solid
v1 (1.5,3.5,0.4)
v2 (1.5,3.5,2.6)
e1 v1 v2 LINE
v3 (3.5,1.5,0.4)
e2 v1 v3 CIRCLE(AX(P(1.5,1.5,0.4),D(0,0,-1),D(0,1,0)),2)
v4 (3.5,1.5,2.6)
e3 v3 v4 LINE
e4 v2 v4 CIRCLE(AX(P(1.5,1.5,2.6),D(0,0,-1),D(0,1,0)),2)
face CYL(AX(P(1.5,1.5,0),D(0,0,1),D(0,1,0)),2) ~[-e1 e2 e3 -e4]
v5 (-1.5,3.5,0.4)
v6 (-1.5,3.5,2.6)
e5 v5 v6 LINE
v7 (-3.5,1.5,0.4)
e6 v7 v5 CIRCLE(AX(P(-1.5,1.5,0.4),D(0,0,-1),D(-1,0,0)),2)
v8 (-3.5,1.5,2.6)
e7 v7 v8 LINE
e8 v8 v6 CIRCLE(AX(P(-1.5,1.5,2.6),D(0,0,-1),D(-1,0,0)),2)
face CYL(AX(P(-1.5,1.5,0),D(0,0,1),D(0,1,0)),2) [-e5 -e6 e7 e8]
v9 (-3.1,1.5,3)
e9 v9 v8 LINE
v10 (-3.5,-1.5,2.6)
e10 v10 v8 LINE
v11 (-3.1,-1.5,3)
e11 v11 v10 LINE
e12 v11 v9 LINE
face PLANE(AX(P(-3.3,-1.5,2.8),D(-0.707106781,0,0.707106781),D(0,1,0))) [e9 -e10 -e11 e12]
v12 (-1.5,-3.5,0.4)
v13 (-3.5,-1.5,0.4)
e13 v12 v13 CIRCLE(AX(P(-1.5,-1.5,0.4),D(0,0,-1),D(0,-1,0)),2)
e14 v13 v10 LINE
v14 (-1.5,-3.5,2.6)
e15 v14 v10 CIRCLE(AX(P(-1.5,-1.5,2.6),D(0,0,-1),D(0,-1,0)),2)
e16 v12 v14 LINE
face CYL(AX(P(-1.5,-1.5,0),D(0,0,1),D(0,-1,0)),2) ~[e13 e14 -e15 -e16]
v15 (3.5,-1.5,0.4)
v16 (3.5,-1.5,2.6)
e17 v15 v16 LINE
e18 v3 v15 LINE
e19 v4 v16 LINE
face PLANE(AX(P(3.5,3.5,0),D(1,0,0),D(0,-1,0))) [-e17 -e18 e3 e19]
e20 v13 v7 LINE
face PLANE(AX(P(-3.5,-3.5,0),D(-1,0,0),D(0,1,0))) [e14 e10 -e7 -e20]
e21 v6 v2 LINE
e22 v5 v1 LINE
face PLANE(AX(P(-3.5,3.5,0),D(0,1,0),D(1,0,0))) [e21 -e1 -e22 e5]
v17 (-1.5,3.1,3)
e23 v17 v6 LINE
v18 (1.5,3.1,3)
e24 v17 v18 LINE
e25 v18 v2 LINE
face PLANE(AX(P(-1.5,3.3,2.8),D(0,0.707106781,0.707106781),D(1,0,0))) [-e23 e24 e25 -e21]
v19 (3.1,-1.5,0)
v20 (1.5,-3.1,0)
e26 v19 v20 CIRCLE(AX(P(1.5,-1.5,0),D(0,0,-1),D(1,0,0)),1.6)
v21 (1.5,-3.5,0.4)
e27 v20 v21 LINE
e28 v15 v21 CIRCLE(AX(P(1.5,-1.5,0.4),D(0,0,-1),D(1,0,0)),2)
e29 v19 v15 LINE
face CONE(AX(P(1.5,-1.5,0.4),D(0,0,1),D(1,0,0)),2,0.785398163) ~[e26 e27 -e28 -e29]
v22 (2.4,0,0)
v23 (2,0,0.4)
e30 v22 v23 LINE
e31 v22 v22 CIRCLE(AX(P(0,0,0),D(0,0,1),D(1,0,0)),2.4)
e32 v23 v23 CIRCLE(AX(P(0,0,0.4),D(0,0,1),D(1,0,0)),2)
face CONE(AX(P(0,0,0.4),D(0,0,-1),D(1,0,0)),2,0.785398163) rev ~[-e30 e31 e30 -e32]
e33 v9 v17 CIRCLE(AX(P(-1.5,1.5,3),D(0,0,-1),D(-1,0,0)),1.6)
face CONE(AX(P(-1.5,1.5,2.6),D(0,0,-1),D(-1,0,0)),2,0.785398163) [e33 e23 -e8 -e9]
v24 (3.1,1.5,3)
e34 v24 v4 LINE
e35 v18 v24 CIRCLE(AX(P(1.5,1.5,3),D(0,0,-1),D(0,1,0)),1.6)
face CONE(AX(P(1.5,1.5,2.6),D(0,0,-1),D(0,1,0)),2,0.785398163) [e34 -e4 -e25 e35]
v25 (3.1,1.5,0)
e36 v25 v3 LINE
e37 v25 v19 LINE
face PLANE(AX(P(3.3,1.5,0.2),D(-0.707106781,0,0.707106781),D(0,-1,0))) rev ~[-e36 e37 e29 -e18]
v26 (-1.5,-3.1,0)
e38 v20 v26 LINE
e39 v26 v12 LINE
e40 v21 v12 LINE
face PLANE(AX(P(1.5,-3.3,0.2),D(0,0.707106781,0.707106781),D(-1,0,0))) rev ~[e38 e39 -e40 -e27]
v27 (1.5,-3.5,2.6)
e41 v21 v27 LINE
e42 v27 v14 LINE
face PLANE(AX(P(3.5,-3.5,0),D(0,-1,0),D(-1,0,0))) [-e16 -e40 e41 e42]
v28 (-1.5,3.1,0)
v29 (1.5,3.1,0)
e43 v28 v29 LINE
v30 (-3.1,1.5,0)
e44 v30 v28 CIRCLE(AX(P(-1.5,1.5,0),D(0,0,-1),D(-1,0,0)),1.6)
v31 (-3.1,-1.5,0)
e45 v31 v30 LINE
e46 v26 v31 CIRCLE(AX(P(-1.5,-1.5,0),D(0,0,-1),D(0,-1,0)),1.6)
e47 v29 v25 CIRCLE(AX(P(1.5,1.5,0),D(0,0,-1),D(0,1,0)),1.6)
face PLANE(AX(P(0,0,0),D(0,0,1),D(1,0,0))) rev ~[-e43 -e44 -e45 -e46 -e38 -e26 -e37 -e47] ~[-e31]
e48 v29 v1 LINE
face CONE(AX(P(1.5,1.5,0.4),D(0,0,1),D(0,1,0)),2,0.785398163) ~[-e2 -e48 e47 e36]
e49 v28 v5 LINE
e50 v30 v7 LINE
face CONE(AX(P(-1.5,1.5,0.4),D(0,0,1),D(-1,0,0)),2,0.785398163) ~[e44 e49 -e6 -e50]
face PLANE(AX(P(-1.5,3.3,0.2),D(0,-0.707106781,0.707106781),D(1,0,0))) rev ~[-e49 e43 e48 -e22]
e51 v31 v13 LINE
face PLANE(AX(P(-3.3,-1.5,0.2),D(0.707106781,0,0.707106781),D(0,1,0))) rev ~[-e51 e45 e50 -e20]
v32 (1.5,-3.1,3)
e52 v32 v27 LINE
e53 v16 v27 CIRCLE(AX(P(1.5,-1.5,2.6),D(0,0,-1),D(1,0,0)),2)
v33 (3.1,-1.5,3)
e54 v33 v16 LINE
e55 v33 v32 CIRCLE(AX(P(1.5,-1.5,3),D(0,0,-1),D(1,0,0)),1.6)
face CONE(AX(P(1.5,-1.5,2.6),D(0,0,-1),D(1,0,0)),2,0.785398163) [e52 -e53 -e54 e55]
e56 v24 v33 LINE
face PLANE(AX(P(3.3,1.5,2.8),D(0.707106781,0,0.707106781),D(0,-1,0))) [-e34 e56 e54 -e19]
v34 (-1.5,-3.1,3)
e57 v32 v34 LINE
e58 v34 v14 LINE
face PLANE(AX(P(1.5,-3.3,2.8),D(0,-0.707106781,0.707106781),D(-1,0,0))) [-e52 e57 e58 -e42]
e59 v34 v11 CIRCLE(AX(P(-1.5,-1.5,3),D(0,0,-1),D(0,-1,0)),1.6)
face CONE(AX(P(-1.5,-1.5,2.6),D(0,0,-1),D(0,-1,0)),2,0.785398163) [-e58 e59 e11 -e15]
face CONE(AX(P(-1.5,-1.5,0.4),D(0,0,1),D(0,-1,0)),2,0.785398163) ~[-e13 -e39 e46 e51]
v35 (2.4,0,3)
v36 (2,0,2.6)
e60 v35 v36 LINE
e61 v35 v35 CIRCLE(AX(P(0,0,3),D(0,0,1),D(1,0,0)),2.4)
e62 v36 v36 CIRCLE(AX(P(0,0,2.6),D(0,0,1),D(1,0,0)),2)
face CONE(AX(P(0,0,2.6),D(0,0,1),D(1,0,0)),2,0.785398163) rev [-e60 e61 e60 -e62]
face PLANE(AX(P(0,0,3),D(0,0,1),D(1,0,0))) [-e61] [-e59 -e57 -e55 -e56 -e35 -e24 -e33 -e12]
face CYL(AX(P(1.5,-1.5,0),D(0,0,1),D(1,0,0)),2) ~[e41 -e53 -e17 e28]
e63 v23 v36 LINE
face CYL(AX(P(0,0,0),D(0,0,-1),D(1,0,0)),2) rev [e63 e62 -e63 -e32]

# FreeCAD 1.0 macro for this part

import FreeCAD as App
import Part
import Sketcher


def edges_at(feature, points):
    """Names of the edges that pass closest to the given points."""
    edges = feature.Shape.Edges
    near = lambda p: min(range(len(edges)), key=lambda i: edges[i].distToShape(Part.Vertex(*p))[0])
    return sorted({f"Edge{near(p) + 1}" for p in points})


def add_polygon(sketch, points):
    """Adds a closed chain of lines whose ends are joined by coincident constraints."""
    first, n = sketch.GeometryCount, len(points)
    for a, b in zip(points, points[1:] + points[:1]):
        sketch.addGeometry(Part.LineSegment(App.Vector(*a, 0), App.Vector(*b, 0)), False)
    for i in range(n):
        sketch.addConstraint(Sketcher.Constraint("Coincident", first + i, 2, first + (i + 1) % n, 1))

doc = App.newDocument("Part")
body = doc.addObject("PartDesign::Body", "Body")

sketch1 = body.newObject("Sketcher::SketchObject", "Sketch")
sketch1.AttachmentSupport = (doc.getObject("XY_Plane"), [""])
sketch1.MapMode = "FlatFace"
add_polygon(sketch1, [(3.5, 3.5), (-3.5, 3.5), (-3.5, -3.5), (3.5, -3.5)])
sketch1.addGeometry(Part.Circle(App.Vector(0, 0, 0), App.Vector(0, 0, 1), 2), False)
sketch1.addConstraint(Sketcher.Constraint("Horizontal", 0))
sketch1.addConstraint(Sketcher.Constraint("Vertical", 1))
sketch1.addConstraint(Sketcher.Constraint("Horizontal", 2))
sketch1.addConstraint(Sketcher.Constraint("Vertical", 3))
sketch1.addConstraint(Sketcher.Constraint("Coincident", 4, 3, -1, 1))
sketch1.addConstraint(Sketcher.Constraint("Symmetric", 0, 2, 2, 2, -1, 1))
sketch1.addConstraint(Sketcher.Constraint("Equal", 2, 1))
sketch1.addConstraint(Sketcher.Constraint("Diameter", 4, 4.0))
sketch1.addConstraint(Sketcher.Constraint("DistanceX", 0, 2, 0, 1, 7.0))
pad1 = body.newObject("PartDesign::Pad", "Pad")
pad1.Profile = sketch1
pad1.Length = 3
doc.recompute()

fillet = body.newObject("PartDesign::Fillet", "Fillet")
fillet.Base = (pad1, edges_at(pad1, [
    (3.5, 3.5, 1.5),
    (3.5, -3.5, 1.5),
    (-3.5, -3.5, 1.5),
    (-3.5, 3.5, 1.5),
]))
fillet.Radius = 2
doc.recompute()

chamfer = body.newObject("PartDesign::Chamfer", "Chamfer")
chamfer.Base = (fillet, edges_at(fillet, [
    (-2.914, -2.914, 3),
    (-3.5, 0, 3),
    (-2.914, 2.914, 3),
    (0, 3.5, 3),
    (2.914, 2.914, 3),
    (3.5, 0, 3),
    (2.914, -2.914, 3),
    (0, -3.5, 3),
    (2.914, -2.914, 0),
    (3.5, 0, 0),
    (2.914, 2.914, 0),
    (0, 3.5, 0),
    (-2.914, 2.914, 0),
    (-3.5, 0, 0),
    (-2.914, -2.914, 0),
    (0, -3.5, 0),
    (-2, 0, 3),
    (-2, 0, 0),
]))
chamfer.Size = 0.4

doc.recompute()
